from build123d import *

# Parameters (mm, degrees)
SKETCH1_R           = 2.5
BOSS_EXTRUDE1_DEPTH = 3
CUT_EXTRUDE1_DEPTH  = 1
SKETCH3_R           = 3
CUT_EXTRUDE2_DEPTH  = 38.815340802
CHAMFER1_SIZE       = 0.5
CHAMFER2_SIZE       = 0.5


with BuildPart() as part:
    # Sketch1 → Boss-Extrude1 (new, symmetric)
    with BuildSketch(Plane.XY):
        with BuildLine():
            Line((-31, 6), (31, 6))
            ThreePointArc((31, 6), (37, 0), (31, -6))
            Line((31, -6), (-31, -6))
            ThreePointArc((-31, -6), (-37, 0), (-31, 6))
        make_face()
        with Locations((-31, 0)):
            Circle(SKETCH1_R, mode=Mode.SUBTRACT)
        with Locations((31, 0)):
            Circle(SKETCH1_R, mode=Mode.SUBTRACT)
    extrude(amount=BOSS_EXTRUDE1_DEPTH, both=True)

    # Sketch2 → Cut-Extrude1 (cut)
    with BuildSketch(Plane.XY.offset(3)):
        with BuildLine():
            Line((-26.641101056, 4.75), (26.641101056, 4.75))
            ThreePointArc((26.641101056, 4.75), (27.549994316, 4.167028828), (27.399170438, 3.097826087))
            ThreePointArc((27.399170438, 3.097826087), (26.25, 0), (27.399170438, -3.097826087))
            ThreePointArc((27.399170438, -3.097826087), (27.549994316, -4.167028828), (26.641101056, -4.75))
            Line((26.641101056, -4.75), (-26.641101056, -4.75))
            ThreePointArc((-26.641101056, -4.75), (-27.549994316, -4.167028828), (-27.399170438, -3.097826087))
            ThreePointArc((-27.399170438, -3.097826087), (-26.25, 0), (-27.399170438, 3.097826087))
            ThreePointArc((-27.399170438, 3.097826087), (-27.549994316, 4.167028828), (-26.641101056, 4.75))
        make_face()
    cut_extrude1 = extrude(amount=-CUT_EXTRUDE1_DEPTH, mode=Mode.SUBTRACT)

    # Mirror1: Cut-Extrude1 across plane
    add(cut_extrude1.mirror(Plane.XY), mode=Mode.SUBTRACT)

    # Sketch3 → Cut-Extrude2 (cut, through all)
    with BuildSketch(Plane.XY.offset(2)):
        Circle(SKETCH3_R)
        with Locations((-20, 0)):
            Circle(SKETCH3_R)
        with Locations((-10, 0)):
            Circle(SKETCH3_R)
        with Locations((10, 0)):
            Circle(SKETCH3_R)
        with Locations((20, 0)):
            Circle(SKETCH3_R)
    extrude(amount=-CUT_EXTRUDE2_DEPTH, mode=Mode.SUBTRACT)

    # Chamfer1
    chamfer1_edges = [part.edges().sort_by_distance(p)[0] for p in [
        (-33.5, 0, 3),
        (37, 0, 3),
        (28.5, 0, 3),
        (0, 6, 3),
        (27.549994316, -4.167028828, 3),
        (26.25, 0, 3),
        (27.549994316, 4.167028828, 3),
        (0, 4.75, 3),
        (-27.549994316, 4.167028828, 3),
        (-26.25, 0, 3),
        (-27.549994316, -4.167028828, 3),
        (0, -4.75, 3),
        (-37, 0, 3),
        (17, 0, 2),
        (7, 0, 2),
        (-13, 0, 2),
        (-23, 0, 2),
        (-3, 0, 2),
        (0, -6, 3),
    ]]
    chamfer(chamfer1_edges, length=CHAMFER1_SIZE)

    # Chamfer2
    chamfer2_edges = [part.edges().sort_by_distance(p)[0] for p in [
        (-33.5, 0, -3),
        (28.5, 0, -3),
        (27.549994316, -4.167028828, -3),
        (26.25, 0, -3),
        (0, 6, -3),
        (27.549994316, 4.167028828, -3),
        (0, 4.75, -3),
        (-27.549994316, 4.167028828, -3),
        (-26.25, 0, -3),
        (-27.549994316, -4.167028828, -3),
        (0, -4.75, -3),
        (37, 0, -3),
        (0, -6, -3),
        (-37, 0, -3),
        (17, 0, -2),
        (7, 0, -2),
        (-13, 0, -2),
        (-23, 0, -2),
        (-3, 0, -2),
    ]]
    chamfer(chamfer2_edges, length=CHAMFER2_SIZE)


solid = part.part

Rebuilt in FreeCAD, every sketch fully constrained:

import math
import FreeCAD as App
import Part
import Sketcher
Q = App.Units.Quantity


def edges_at(feature, points):
    """Names of the edges that pass closest to the given points."""
    edges = feature.Shape.Edges
    near = lambda p: min(range(len(edges)), key=lambda i: edges[i].distToShape(Part.Vertex(*p))[0])
    return sorted({f"Edge{near(p) + 1}" for p in points})

doc = App.newDocument("Part")
body = doc.addObject("PartDesign::Body", "Body")

# Sketch on XY plane
sketch1 = body.newObject("Sketcher::SketchObject", "Sketch")
sketch1.AttachmentSupport = (doc.getObject("XY_Plane"), [""])
sketch1.MapMode = "FlatFace"
sketch1.addGeometry([
    Part.LineSegment(App.Vector(31, 6, 0), App.Vector(-31, 6, 0)),  # 0
    Part.ArcOfCircle(Part.Circle(App.Vector(-31, 0, 0), App.Vector(0, 0, 1), 6), math.radians(90), math.radians(270)),  # 1
    Part.LineSegment(App.Vector(-31, -6, 0), App.Vector(31, -6, 0)),  # 2
    Part.ArcOfCircle(Part.Circle(App.Vector(31, 0, 0), App.Vector(0, 0, 1), 6), math.radians(-90), math.radians(90)),  # 3
    Part.Circle(App.Vector(31, 0, 0), App.Vector(0, 0, 1), 2.5),  # 4
    Part.Circle(App.Vector(-31, 0, 0), App.Vector(0, 0, 1), 2.5),  # 5
], False)
sketch1.addConstraint([
    Sketcher.Constraint("Tangent", 0, 2, 1, 1),
    Sketcher.Constraint("Tangent", 1, 2, 2, 1),
    Sketcher.Constraint("Tangent", 2, 2, 3, 1),
    Sketcher.Constraint("Tangent", 3, 2, 0, 1),
    Sketcher.Constraint("Horizontal", 0),
    Sketcher.Constraint("Horizontal", 2),
    Sketcher.Constraint("Coincident", 4, 3, 3, 3),
    Sketcher.Constraint("Coincident", 5, 3, 1, 3),
    Sketcher.Constraint("Equal", 4, 5),
    Sketcher.Constraint("Symmetric", 1, 3, 3, 3, -1, 1),
    Sketcher.Constraint("Diameter", 4, Q("5 mm")),
    Sketcher.Constraint("Radius", 1, Q("6 mm")),
    Sketcher.Constraint("DistanceX", 0, 2, 0, 1, Q("62 mm")),
])
pad1 = body.newObject("PartDesign::Pad", "Pad")
pad1.Profile = sketch1
pad1.Length = 6
pad1.Midplane = True

# Sketch on XY plane
sketch2 = body.newObject("Sketcher::SketchObject", "Sketch001")
sketch2.AttachmentSupport = (doc.getObject("XY_Plane"), [""])
sketch2.MapMode = "FlatFace"
sketch2.AttachmentOffset = App.Placement(App.Vector(0, 0, 3), App.Rotation())
sketch2.addGeometry([
    Part.LineSegment(App.Vector(26.6, 4.8, 0), App.Vector(-26.6, 4.8, 0)),  # 0
    Part.ArcOfCircle(Part.Circle(App.Vector(-26.6, 3.8, 0), App.Vector(0, 0, 1), 1), math.radians(90), math.radians(221)),  # 1
    Part.ArcOfCircle(Part.Circle(App.Vector(-31, 0, 0), App.Vector(0, 0, 1), 4.8), math.radians(-41), math.radians(41)),  # 2
    Part.ArcOfCircle(Part.Circle(App.Vector(-26.6, -3.8, 0), App.Vector(0, 0, 1), 1), math.radians(139), math.radians(270)),  # 3
    Part.LineSegment(App.Vector(-26.6, -4.8, 0), App.Vector(26.6, -4.8, 0)),  # 4
    Part.ArcOfCircle(Part.Circle(App.Vector(26.6, -3.8, 0), App.Vector(0, 0, 1), 1), math.radians(-90), math.radians(41)),  # 5
    Part.ArcOfCircle(Part.Circle(App.Vector(31, 0, 0), App.Vector(0, 0, 1), 4.8), math.radians(139), math.radians(221)),  # 6
    Part.ArcOfCircle(Part.Circle(App.Vector(26.6, 3.8, 0), App.Vector(0, 0, 1), 1), math.radians(-41), math.radians(90)),  # 7
], False)
sketch2.addConstraint([
    Sketcher.Constraint("Tangent", 0, 2, 1, 1),
    Sketcher.Constraint("Tangent", 1, 2, 2, 2),
    Sketcher.Constraint("Tangent", 2, 1, 3, 1),
    Sketcher.Constraint("Tangent", 3, 2, 4, 1),
    Sketcher.Constraint("Tangent", 4, 2, 5, 1),
    Sketcher.Constraint("Tangent", 5, 2, 6, 2),
    Sketcher.Constraint("Tangent", 6, 1, 7, 1),
    Sketcher.Constraint("Tangent", 7, 2, 0, 1),
    Sketcher.Constraint("Horizontal", 0),
    Sketcher.Constraint("Horizontal", 4),
    Sketcher.Constraint("Equal", 1, 3),
    Sketcher.Constraint("Equal", 3, 5),
    Sketcher.Constraint("Equal", 2, 6),
    Sketcher.Constraint("Equal", 5, 7),
    Sketcher.Constraint("Symmetric", 1, 3, 5, 3, -1, 1),
    Sketcher.Constraint("Symmetric", 2, 3, 6, 3, -2),
    Sketcher.Constraint("Radius", 1, Q("1 mm")),
    Sketcher.Constraint("Radius", 2, Q("4.75 mm")),
    Sketcher.Constraint("DistanceX", 2, 3, -1, 1, Q("31 mm")),
    Sketcher.Constraint("DistanceY", 3, 3, 1, 3, Q("7.5 mm")),
])
pocket1 = body.newObject("PartDesign::Pocket", "Pocket")
pocket1.Profile = sketch2
pocket1.Length = 1
doc.recompute()

mirrored = body.newObject("PartDesign::Mirrored", "Mirrored")
mirrored.Originals = [pocket1]
mirrored.MirrorPlane = (doc.getObject("XY_Plane"), [""])
body.Tip = mirrored

# Sketch on XY plane
sketch3 = body.newObject("Sketcher::SketchObject", "Sketch002")
sketch3.AttachmentSupport = (doc.getObject("XY_Plane"), [""])
sketch3.MapMode = "FlatFace"
sketch3.AttachmentOffset = App.Placement(App.Vector(0, 0, 2), App.Rotation())
sketch3.addGeometry([
    Part.Circle(App.Vector(0, 0, 0), App.Vector(0, 0, 1), 3),  # 0
    Part.Circle(App.Vector(-20, 0, 0), App.Vector(0, 0, 1), 3),  # 1
    Part.Circle(App.Vector(-10, 0, 0), App.Vector(0, 0, 1), 3),  # 2
    Part.Circle(App.Vector(10, 0, 0), App.Vector(0, 0, 1), 3),  # 3
    Part.Circle(App.Vector(20, 0, 0), App.Vector(0, 0, 1), 3),  # 4
], False)
sketch3.addConstraint([
    Sketcher.Constraint("Coincident", 0, 3, -1, 1),
    Sketcher.Constraint("Equal", 0, 1),
    Sketcher.Constraint("Equal", 1, 2),
    Sketcher.Constraint("Equal", 2, 3),
    Sketcher.Constraint("Equal", 3, 4),
    Sketcher.Constraint("Symmetric", 2, 3, 3, 3, -1, 1),
    Sketcher.Constraint("Symmetric", 1, 3, 4, 3, -1, 1),
    Sketcher.Constraint("PointOnObject", 1, 3, -1),
    Sketcher.Constraint("PointOnObject", 2, 3, -1),
    Sketcher.Constraint("Diameter", 0, Q("6 mm")),
    Sketcher.Constraint("DistanceX", 1, 3, -1, 1, Q("20 mm")),
    Sketcher.Constraint("DistanceX", 2, 3, -1, 1, Q("10 mm")),
])
pocket2 = body.newObject("PartDesign::Pocket", "Pocket001")
pocket2.Profile = sketch3
pocket2.Type = "ThroughAll"
doc.recompute()

chamfer = body.newObject("PartDesign::Chamfer", "Chamfer")
chamfer.Base = (pocket2, edges_at(pocket2, [
    (-33.5, 0, 3),
    (37, 0, 3),
    (28.5, 0, 3),
    (0, 6, 3),
    (27.55, -4.167, 3),
    (26.25, 0, 3),
    (27.55, 4.167, 3),
    (0, 4.75, 3),
    (-27.55, 4.167, 3),
    (-26.25, 0, 3),
    (-27.55, -4.167, 3),
    (0, -4.75, 3),
    (-37, 0, 3),
    (17, 0, 2),
    (7, 0, 2),
    (-13, 0, 2),
    (-23, 0, 2),
    (-3, 0, 2),
    (0, -6, 3),
]))
chamfer.Size = 0.5
doc.recompute()

chamfer2 = body.newObject("PartDesign::Chamfer", "Chamfer001")
chamfer2.Base = (chamfer, edges_at(chamfer, [
    (-33.5, 0, -3),
    (28.5, 0, -3),
    (27.55, -4.167, -3),
    (26.25, 0, -3),
    (0, 6, -3),
    (27.55, 4.167, -3),
    (0, 4.75, -3),
    (-27.55, 4.167, -3),
    (-26.25, 0, -3),
    (-27.55, -4.167, -3),
    (0, -4.75, -3),
    (37, 0, -3),
    (0, -6, -3),
    (-37, 0, -3),
    (17, 0, -2),
    (7, 0, -2),
    (-13, 0, -2),
    (-23, 0, -2),
    (-3, 0, -2),
]))
chamfer2.Size = 0.5

doc.recompute()
